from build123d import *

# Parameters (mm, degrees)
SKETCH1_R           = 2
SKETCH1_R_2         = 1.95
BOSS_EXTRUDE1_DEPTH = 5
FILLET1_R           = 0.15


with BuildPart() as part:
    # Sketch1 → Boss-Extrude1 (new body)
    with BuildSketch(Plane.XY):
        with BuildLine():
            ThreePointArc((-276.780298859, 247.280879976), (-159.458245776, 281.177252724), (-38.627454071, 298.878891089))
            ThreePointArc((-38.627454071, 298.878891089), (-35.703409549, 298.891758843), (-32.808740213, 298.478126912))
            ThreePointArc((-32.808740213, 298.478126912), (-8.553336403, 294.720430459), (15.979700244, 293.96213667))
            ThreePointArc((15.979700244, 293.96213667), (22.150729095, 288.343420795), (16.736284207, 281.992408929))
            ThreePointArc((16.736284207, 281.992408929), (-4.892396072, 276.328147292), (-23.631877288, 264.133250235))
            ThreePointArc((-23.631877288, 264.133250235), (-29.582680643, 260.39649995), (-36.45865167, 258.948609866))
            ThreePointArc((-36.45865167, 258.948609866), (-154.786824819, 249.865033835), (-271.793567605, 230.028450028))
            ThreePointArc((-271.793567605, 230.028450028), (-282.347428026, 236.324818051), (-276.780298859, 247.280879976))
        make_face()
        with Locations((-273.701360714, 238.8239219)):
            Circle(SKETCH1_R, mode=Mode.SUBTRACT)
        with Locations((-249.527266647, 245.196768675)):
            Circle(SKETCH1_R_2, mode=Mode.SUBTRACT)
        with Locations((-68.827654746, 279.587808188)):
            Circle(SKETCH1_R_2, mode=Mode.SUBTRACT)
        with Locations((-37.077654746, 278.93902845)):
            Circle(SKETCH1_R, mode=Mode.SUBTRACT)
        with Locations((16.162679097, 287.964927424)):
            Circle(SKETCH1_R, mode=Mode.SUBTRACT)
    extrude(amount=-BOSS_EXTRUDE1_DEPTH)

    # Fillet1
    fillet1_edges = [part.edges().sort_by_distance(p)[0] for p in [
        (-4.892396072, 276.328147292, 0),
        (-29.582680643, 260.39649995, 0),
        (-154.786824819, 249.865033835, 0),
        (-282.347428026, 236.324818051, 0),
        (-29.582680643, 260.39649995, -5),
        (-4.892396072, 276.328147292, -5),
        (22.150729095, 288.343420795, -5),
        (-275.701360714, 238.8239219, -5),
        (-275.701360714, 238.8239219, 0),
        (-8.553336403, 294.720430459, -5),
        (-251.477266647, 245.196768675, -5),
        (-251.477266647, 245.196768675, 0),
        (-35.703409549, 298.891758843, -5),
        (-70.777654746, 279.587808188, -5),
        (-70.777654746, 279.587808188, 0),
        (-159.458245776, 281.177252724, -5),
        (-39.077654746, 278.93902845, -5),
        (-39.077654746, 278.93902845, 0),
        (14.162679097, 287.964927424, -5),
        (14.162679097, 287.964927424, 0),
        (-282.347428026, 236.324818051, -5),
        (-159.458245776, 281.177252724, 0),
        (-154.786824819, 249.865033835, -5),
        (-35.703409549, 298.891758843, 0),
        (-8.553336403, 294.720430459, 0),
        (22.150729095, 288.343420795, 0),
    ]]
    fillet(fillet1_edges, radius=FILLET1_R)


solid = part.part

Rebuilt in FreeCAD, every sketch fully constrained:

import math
import FreeCAD as App
import Part
import Sketcher


def edges_at(feature, points):
    """Names of the edges that pass closest to the given points."""
    edges = feature.Shape.Edges
    near = lambda p: min(range(len(edges)), key=lambda i: edges[i].distToShape(Part.Vertex(*p))[0])
    return sorted({f"Edge{near(p) + 1}" for p in points})

doc = App.newDocument("Part")
params = doc.addObject("Spreadsheet::Sheet", "Params")
for row, (alias, value) in enumerate([
    ("sketch1_diameter", "4 mm"),
    ("sketch1_radius", "900 mm"),
    ("sketch1_radius2", "9 mm"),
    ("sketch1_radius3", "1300 mm"),
    ("sketch1_radius4", "20 mm"),
    ("pad1_length", "5 mm"),
    ("fillet_radius", "0.15 mm"),
], start=1):
    params.set(f"A{row}", alias)
    params.set(f"B{row}", "=" + value)
    params.setAlias(f"B{row}", alias)

body = doc.addObject("PartDesign::Body", "Body")

sketch1 = doc.addObject("Sketcher::SketchObject", "Sketch")
body.addObject(sketch1)
sketch1.AttachmentSupport = (doc.XY_Plane, [""])
sketch1.MapMode = "FlatFace"
sketch1.addGeometry([
    Part.ArcOfCircle(Part.Circle(App.Vector(31.1, -598.4, 0), App.Vector(0, 0, 1), 900), math.radians(94.44), math.radians(110.01)),
    Part.ArcOfCircle(Part.Circle(App.Vector(-273.7, 238.8, 0), App.Vector(0, 0, 1), 9), math.radians(110), math.radians(282)),
    Part.ArcOfCircle(Part.Circle(App.Vector(3.8, -1040.4, 0), App.Vector(0, 0, 1), 1300), math.radians(91.77), math.radians(102.24)),
    Part.ArcOfCircle(Part.Circle(App.Vector(-37.1, 278.9, 0), App.Vector(0, 0, 1), 20), math.radians(-88), math.radians(-48)),
    Part.ArcOfCircle(Part.Circle(App.Vector(23.4, 212.3, 0), App.Vector(0, 0, 1), 70), math.radians(95), math.radians(132)),
    Part.ArcOfCircle(Part.Circle(App.Vector(16.2, 288, 0), App.Vector(0, 0, 1), 6), math.radians(-85), math.radians(92)),
    Part.ArcOfCircle(Part.Circle(App.Vector(9.9, 493.9, 0), App.Vector(0, 0, 1), 200), math.radians(-102.32), math.radians(-88.25)),
    Part.ArcOfCircle(Part.Circle(App.Vector(-37.1, 278.9, 0), App.Vector(0, 0, 1), 20), math.radians(77.68), math.radians(94.44)),
    Part.Circle(App.Vector(-273.7, 238.8, 0), App.Vector(0, 0, 1), 2),
    Part.Circle(App.Vector(-249.5, 245.2, 0), App.Vector(0, 0, 1), 1.9),
    Part.Circle(App.Vector(-37.1, 278.9, 0), App.Vector(0, 0, 1), 2),
    Part.Circle(App.Vector(16.2, 288, 0), App.Vector(0, 0, 1), 2),
    Part.Circle(App.Vector(-68.8, 279.6, 0), App.Vector(0, 0, 1), 1.9),
], False)
sketch1.addConstraint([
    Sketcher.Constraint("Tangent", 0, 2, 1, 1),
    Sketcher.Constraint("Tangent", 1, 2, 2, 2),
    Sketcher.Constraint("Tangent", 2, 1, 3, 1),
    Sketcher.Constraint("Tangent", 3, 2, 4, 2),
    Sketcher.Constraint("Tangent", 4, 1, 5, 1),
    Sketcher.Constraint("Tangent", 5, 2, 6, 2),
    Sketcher.Constraint("Tangent", 6, 1, 7, 1),
    Sketcher.Constraint("Tangent", 7, 2, 0, 1),
    Sketcher.Constraint("Coincident", 7, 3, 3, 3),
    Sketcher.Constraint("Coincident", 8, 3, 1, 3),
    Sketcher.Constraint("Coincident", 10, 3, 3, 3),
    Sketcher.Constraint("Coincident", 11, 3, 5, 3),
    Sketcher.Constraint("Equal", 3, 7),
    Sketcher.Constraint("Equal", 8, 10),
    Sketcher.Constraint("Equal", 10, 11),
    Sketcher.Constraint("Equal", 9, 12),
    Sketcher.Constraint("Diameter", 8, 4.0),
    Sketcher.Constraint("Radius", 0, 900.0),
    Sketcher.Constraint("Radius", 1, 9.0),
    Sketcher.Constraint("Radius", 2, 1300.0),
    Sketcher.Constraint("Radius", 3, 20.0),
    Sketcher.Constraint("Radius", 4, 70.0),
    Sketcher.Constraint("Radius", 5, 6.0),
    Sketcher.Constraint("Radius", 6, 200.0),
    Sketcher.Constraint("Diameter", 9, 3.9),
    Sketcher.Constraint("DistanceX", 12, 3, 7, 3, 31.75),
    Sketcher.Constraint("DistanceX", 3, 3, 4, 3, 60.505999),
    Sketcher.Constraint("DistanceY", 2, 3, -1, 1, 1040.428598),
    Sketcher.Constraint("DistanceX", -1, 1, 5, 2, 15.9797),
    Sketcher.Constraint("DistanceY", 3, 3, 5, 3, 9.025899),
    Sketcher.Constraint("DistanceX", 1, 2, 9, 3, 22.266301),
    Sketcher.Constraint("DistanceY", 2, 1, 12, 3, 20.639198),
    Sketcher.Constraint("DistanceX", 1, 3, -1, 1, 273.701361),
    Sketcher.Constraint("DistanceY", -1, 1, 1, 3, 238.823922),
    Sketcher.Constraint("DistanceY", -1, 1, 9, 3, 245.196769),
])
sketch1.setExpression("Constraints[16]", "Params.sketch1_diameter")
sketch1.setExpression("Constraints[17]", "Params.sketch1_radius")
sketch1.setExpression("Constraints[18]", "Params.sketch1_radius2")
sketch1.setExpression("Constraints[19]", "Params.sketch1_radius3")
sketch1.setExpression("Constraints[20]", "Params.sketch1_radius4")
pad1 = doc.addObject("PartDesign::Pad", "Pad")
body.addObject(pad1)
pad1.Profile = sketch1
pad1.setExpression("Length", "Params.pad1_length")
pad1.Reversed = True
doc.recompute()

fillet = doc.addObject("PartDesign::Fillet", "Fillet")
body.addObject(fillet)
fillet.Base = (pad1, edges_at(pad1, [
    (-4.892, 276.328, 0),
    (-29.583, 260.396, 0),
    (-154.787, 249.865, 0),
    (-282.347, 236.325, 0),
    (-29.583, 260.396, -5),
    (-4.892, 276.328, -5),
    (22.151, 288.343, -5),
    (-275.701, 238.824, -5),
    (-275.701, 238.824, 0),
    (-8.553, 294.72, -5),
    (-251.477, 245.197, -5),
    (-251.477, 245.197, 0),
    (-35.703, 298.892, -5),
    (-70.778, 279.588, -5),
    (-70.778, 279.588, 0),
    (-159.458, 281.177, -5),
    (-39.078, 278.939, -5),
    (-39.078, 278.939, 0),
    (14.163, 287.965, -5),
    (14.163, 287.965, 0),
    (-282.347, 236.325, -5),
    (-159.458, 281.177, 0),
    (-154.787, 249.865, -5),
    (-35.703, 298.892, 0),
    (-8.553, 294.72, 0),
    (22.151, 288.343, 0),
]))
fillet.setExpression("Radius", "Params.fillet_radius")

doc.recompute()
